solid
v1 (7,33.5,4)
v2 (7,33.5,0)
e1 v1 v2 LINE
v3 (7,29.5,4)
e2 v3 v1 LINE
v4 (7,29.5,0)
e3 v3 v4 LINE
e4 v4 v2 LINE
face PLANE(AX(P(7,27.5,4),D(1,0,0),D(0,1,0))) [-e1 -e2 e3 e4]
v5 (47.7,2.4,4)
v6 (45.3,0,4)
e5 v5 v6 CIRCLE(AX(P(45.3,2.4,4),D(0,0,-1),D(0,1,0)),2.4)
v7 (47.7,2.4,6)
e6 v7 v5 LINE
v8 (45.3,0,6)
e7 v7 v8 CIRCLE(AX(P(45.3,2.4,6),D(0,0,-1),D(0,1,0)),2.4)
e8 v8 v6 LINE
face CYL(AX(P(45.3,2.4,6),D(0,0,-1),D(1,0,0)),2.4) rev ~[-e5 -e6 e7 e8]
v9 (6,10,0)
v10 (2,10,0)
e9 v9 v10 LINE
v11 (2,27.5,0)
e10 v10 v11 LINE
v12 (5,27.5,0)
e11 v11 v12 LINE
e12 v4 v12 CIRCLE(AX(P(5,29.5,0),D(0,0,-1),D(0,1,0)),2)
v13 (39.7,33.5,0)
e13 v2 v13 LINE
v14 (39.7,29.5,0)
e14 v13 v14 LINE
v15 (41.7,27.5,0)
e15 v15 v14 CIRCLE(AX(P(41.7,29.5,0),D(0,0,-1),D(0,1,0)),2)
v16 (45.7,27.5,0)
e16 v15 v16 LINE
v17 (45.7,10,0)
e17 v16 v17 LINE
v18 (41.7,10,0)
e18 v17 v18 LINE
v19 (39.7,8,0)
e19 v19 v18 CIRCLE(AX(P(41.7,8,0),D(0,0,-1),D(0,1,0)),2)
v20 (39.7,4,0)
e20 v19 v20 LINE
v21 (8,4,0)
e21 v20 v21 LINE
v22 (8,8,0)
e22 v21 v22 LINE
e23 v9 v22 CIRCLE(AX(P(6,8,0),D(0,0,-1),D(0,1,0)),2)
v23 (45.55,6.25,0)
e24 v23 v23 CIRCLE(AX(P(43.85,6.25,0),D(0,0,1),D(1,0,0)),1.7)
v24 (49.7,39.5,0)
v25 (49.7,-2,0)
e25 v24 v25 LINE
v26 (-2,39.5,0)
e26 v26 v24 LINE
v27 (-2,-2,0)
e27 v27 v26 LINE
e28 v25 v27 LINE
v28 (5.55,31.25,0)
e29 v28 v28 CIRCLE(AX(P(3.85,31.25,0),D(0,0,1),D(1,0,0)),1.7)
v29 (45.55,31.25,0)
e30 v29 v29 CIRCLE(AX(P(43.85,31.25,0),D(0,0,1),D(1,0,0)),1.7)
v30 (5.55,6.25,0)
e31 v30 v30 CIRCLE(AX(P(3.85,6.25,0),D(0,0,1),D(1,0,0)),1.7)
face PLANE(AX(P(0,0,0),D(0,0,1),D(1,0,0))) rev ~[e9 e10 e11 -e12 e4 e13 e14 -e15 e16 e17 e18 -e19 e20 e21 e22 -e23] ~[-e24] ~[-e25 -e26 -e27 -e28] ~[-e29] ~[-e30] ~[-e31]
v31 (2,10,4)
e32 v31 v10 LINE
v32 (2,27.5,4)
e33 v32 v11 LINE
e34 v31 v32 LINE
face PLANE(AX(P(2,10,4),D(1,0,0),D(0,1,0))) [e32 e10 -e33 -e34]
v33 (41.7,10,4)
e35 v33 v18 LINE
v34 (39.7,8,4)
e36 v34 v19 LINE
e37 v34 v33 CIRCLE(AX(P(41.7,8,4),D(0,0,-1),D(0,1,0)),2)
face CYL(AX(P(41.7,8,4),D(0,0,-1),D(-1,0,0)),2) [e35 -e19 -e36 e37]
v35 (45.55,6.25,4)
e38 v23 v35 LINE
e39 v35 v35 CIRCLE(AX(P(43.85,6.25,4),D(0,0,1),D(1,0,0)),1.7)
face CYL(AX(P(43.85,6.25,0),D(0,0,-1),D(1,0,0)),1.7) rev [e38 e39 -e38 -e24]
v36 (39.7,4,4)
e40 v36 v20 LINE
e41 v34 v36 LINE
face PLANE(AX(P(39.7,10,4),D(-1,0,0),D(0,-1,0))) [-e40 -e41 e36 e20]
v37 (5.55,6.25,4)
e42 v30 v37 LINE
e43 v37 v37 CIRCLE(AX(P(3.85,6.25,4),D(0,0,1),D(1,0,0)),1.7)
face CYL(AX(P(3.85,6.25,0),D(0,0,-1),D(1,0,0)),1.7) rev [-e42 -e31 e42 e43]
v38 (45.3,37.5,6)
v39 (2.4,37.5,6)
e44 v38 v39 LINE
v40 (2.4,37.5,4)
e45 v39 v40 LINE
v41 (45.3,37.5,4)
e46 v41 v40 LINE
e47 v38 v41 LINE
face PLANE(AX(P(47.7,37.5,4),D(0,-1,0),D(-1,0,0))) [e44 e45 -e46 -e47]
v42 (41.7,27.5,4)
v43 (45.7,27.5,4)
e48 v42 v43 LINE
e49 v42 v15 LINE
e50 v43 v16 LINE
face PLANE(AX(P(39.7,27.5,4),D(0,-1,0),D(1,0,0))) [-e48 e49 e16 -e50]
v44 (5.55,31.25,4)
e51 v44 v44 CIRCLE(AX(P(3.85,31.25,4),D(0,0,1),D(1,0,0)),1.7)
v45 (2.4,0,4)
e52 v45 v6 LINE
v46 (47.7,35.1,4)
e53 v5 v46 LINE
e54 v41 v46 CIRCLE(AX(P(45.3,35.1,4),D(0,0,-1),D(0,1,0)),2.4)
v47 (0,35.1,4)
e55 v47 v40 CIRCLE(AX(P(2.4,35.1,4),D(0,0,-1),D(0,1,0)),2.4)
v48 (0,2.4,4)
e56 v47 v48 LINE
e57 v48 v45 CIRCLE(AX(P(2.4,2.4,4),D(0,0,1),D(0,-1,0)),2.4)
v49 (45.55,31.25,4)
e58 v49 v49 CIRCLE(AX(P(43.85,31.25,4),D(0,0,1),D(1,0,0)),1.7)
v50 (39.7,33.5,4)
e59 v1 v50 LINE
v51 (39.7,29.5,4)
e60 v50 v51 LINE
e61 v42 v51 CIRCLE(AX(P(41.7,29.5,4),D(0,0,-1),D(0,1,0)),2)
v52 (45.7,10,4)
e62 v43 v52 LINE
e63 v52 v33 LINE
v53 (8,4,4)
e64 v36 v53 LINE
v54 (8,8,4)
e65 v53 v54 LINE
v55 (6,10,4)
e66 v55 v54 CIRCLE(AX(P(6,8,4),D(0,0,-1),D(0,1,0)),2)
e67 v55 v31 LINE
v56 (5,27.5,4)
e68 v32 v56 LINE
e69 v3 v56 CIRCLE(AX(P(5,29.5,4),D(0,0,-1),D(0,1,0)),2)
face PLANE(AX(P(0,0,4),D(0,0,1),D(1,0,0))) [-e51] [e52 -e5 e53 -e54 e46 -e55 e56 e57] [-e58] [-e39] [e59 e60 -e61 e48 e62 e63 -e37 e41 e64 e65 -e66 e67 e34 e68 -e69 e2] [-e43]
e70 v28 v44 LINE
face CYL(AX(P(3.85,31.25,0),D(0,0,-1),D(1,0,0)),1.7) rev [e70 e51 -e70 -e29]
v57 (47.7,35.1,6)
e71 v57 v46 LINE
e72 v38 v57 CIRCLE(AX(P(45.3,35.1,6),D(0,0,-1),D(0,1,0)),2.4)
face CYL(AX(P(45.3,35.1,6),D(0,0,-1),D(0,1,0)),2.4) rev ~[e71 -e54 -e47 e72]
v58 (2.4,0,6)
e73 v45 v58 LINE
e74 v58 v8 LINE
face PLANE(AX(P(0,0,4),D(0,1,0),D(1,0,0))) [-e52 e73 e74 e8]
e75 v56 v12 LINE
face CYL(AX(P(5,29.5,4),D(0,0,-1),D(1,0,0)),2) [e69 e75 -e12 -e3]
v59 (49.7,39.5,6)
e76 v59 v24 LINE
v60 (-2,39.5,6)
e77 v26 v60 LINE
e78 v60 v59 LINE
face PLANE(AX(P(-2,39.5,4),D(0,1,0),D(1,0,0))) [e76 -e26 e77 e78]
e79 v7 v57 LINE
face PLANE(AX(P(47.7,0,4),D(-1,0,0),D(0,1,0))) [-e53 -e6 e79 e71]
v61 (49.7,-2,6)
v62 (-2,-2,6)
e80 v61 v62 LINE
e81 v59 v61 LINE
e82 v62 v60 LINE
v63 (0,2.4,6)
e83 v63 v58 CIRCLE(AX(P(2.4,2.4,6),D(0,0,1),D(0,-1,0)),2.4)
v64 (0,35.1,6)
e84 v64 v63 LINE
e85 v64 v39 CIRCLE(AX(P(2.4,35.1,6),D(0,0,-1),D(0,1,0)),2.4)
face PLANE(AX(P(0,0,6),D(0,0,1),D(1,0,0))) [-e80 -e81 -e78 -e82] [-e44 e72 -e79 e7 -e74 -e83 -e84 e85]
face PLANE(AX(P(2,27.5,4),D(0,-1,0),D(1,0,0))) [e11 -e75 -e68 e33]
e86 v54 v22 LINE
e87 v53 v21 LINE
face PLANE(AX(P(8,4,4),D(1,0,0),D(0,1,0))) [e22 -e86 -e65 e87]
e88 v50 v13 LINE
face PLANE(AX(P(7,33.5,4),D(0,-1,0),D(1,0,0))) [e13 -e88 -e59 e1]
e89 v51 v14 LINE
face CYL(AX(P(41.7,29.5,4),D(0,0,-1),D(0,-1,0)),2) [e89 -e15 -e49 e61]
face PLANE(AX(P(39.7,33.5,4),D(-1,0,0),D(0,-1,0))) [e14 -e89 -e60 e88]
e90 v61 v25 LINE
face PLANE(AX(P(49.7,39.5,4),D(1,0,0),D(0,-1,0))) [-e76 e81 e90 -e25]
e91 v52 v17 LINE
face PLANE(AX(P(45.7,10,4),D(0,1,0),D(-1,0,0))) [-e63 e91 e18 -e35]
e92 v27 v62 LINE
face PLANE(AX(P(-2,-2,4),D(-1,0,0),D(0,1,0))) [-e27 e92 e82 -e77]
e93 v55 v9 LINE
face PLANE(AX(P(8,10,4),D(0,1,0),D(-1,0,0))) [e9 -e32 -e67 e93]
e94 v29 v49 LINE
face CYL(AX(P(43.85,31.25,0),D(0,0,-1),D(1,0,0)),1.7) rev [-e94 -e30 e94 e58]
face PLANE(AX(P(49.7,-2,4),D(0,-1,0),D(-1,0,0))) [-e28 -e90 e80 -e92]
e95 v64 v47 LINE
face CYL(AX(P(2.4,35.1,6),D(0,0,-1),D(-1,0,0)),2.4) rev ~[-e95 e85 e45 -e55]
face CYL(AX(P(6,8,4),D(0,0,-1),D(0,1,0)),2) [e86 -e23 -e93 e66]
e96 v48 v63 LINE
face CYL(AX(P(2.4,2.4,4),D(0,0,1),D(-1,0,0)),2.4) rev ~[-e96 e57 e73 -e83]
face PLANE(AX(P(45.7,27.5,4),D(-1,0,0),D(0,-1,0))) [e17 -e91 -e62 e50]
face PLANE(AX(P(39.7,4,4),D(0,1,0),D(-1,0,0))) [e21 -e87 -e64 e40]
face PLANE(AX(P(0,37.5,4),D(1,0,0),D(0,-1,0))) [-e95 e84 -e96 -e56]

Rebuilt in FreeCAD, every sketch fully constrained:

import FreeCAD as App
import Part
import Sketcher


def edges_at(feature, points):
    """Names of the edges that pass closest to the given points."""
    edges = feature.Shape.Edges
    near = lambda p: min(range(len(edges)), key=lambda i: edges[i].distToShape(Part.Vertex(*p))[0])
    return sorted({f"Edge{near(p) + 1}" for p in points})


def add_polygon(sketch, points):
    """Adds a closed chain of lines whose ends are joined by coincident constraints."""
    first, n = sketch.GeometryCount, len(points)
    for a, b in zip(points, points[1:] + points[:1]):
        sketch.addGeometry(Part.LineSegment(App.Vector(*a, 0), App.Vector(*b, 0)), False)
    for i in range(n):
        sketch.addConstraint(Sketcher.Constraint("Coincident", first + i, 2, first + (i + 1) % n, 1))

doc = App.newDocument("Part")
body = doc.addObject("PartDesign::Body", "Body")

# Sketch on XY plane
sketch1 = body.newObject("Sketcher::SketchObject", "Sketch")
sketch1.AttachmentSupport = (doc.getObject("XY_Plane"), [""])
sketch1.MapMode = "FlatFace"
add_polygon(sketch1, [(0, 37.5), (0, 0), (47.7, 0), (47.7, 37.5)])  # lines 0-3
sketch1.addGeometry(Part.Circle(App.Vector(3.9, 6.2, 0), App.Vector(0, 0, 1), 1.7), False)  # 4
sketch1.addGeometry(Part.Circle(App.Vector(43.9, 6.2, 0), App.Vector(0, 0, 1), 1.7), False)  # 5
sketch1.addGeometry(Part.Circle(App.Vector(3.9, 31.2, 0), App.Vector(0, 0, 1), 1.7), False)  # 6
sketch1.addGeometry(Part.Circle(App.Vector(43.9, 31.2, 0), App.Vector(0, 0, 1), 1.7), False)  # 7
sketch1.addConstraint(Sketcher.Constraint("Vertical", 0))
sketch1.addConstraint(Sketcher.Constraint("Horizontal", 1))
sketch1.addConstraint(Sketcher.Constraint("Vertical", 2))
sketch1.addConstraint(Sketcher.Constraint("Horizontal", 3))
sketch1.addConstraint(Sketcher.Constraint("Coincident", 0, 2, -1, 1))
sketch1.addConstraint(Sketcher.Constraint("Equal", 4, 5))
sketch1.addConstraint(Sketcher.Constraint("Equal", 5, 6))
sketch1.addConstraint(Sketcher.Constraint("Equal", 6, 7))
sketch1.addConstraint(Sketcher.Constraint("Horizontal", 4, 3, 5, 3))
sketch1.addConstraint(Sketcher.Constraint("Horizontal", 6, 3, 7, 3))
sketch1.addConstraint(Sketcher.Constraint("Vertical", 4, 3, 6, 3))
sketch1.addConstraint(Sketcher.Constraint("Vertical", 5, 3, 7, 3))
sketch1.addConstraint(Sketcher.Constraint("Diameter", 4, 3.4))
sketch1.addConstraint(Sketcher.Constraint("DistanceX", 1, 1, 1, 2, 47.7))
sketch1.addConstraint(Sketcher.Constraint("DistanceY", 0, 2, 0, 1, 37.5))
sketch1.addConstraint(Sketcher.Constraint("DistanceX", 4, 3, 5, 3, 40.0))
sketch1.addConstraint(Sketcher.Constraint("DistanceY", 4, 3, 6, 3, 25.0))
sketch1.addConstraint(Sketcher.Constraint("DistanceX", -1, 1, 4, 3, 3.85))
sketch1.addConstraint(Sketcher.Constraint("DistanceY", -1, 1, 4, 3, 6.25))
pad1 = body.newObject("PartDesign::Pad", "Pad")
pad1.Profile = sketch1
pad1.Length = 4

# Sketch on XY plane
sketch2 = body.newObject("Sketcher::SketchObject", "Sketch001")
sketch2.AttachmentSupport = (doc.getObject("XY_Plane"), [""])
sketch2.MapMode = "FlatFace"
sketch2.AttachmentOffset = App.Placement(App.Vector(0, 0, 4), App.Rotation())
add_polygon(sketch2, [(50, 40), (-2, 40), (-2, -2), (50, -2)])  # lines 0-3
add_polygon(sketch2, [(48, 0), (0, 0), (0, 38), (48, 38)])  # lines 4-7
sketch2.addConstraint(Sketcher.Constraint("Horizontal", 0))
sketch2.addConstraint(Sketcher.Constraint("Vertical", 1))
sketch2.addConstraint(Sketcher.Constraint("Horizontal", 2))
sketch2.addConstraint(Sketcher.Constraint("Vertical", 3))
sketch2.addConstraint(Sketcher.Constraint("Horizontal", 4))
sketch2.addConstraint(Sketcher.Constraint("Vertical", 5))
sketch2.addConstraint(Sketcher.Constraint("Horizontal", 6))
sketch2.addConstraint(Sketcher.Constraint("Vertical", 7))
sketch2.addConstraint(Sketcher.Constraint("Coincident", 4, 2, -1, 1))
sketch2.addConstraint(Sketcher.Constraint("DistanceX", 0, 2, -1, 1, 2.0))
sketch2.addConstraint(Sketcher.Constraint("DistanceY", 1, 2, -1, 1, 2.0))
sketch2.addConstraint(Sketcher.Constraint("DistanceY", 5, 2, 0, 2, 2.0))
sketch2.addConstraint(Sketcher.Constraint("DistanceX", 6, 2, 3, 2, 2.0))
sketch2.addConstraint(Sketcher.Constraint("DistanceX", 0, 2, 0, 1, 51.7))
sketch2.addConstraint(Sketcher.Constraint("DistanceY", 1, 2, 1, 1, 41.5))
pad2 = body.newObject("PartDesign::Pad", "Pad001")
pad2.Profile = sketch2
pad2.Type = "TwoLengths"
pad2.Length = 2
pad2.Length2 = 4
doc.recompute()

fillet = body.newObject("PartDesign::Fillet", "Fillet")
fillet.Base = (pad2, edges_at(pad2, [
    (0, 37.5, 5),
    (47.7, 37.5, 5),
    (47.7, 0, 5),
    (0, 0, 5),
]))
fillet.Radius = 2.4

# Sketch on XY plane
sketch3 = body.newObject("Sketcher::SketchObject", "Sketch002")
sketch3.AttachmentSupport = (doc.getObject("XY_Plane"), [""])
sketch3.MapMode = "FlatFace"
sketch3.AttachmentOffset = App.Placement(App.Vector(0, 0, 4), App.Rotation())
add_polygon(sketch3, [(40, 34), (7, 34), (7, 28), (2, 28), (2, 10), (8, 10), (8, 4), (40, 4), (40, 10), (46, 10), (46, 28), (40, 28)])  # lines 0-11
sketch3.addConstraint(Sketcher.Constraint("Horizontal", 0))
sketch3.addConstraint(Sketcher.Constraint("Vertical", 1))
sketch3.addConstraint(Sketcher.Constraint("Horizontal", 2))
sketch3.addConstraint(Sketcher.Constraint("Vertical", 3))
sketch3.addConstraint(Sketcher.Constraint("Horizontal", 4))
sketch3.addConstraint(Sketcher.Constraint("Vertical", 5))
sketch3.addConstraint(Sketcher.Constraint("Horizontal", 6))
sketch3.addConstraint(Sketcher.Constraint("Vertical", 7))
sketch3.addConstraint(Sketcher.Constraint("Horizontal", 8))
sketch3.addConstraint(Sketcher.Constraint("Vertical", 9))
sketch3.addConstraint(Sketcher.Constraint("Horizontal", 10))
sketch3.addConstraint(Sketcher.Constraint("Vertical", 11))
sketch3.addConstraint(Sketcher.Constraint("Horizontal", 4, 2, 7, 2))
sketch3.addConstraint(Sketcher.Constraint("Horizontal", 2, 2, 9, 2))
sketch3.addConstraint(Sketcher.Constraint("Vertical", 7, 2, 10, 2))
sketch3.addConstraint(Sketcher.Constraint("Equal", 4, 8))
sketch3.addConstraint(Sketcher.Constraint("Equal", 10, 1))
sketch3.addConstraint(Sketcher.Constraint("Equal", 1, 5))
sketch3.addConstraint(Sketcher.Constraint("DistanceX", -1, 1, 0, 2, 7.0))
sketch3.addConstraint(Sketcher.Constraint("DistanceX", -1, 1, 2, 2, 2.0))
sketch3.addConstraint(Sketcher.Constraint("DistanceY", -1, 1, 3, 2, 10.0))
sketch3.addConstraint(Sketcher.Constraint("DistanceX", -1, 1, 4, 2, 8.0))
sketch3.addConstraint(Sketcher.Constraint("DistanceX", 0, 2, 0, 1, 32.7))
sketch3.addConstraint(Sketcher.Constraint("DistanceY", 3, 2, 3, 1, 17.5))
pocket1 = body.newObject("PartDesign::Pocket", "Pocket")
pocket1.Profile = sketch3
pocket1.Length = 10
doc.recompute()

fillet2 = body.newObject("PartDesign::Fillet", "Fillet001")
fillet2.Base = (pocket1, edges_at(pocket1, [
    (8, 10, 2),
    (7, 27.5, 2),
    (39.7, 27.5, 2),
    (39.7, 10, 2),
]))
fillet2.Radius = 2

doc.recompute()
